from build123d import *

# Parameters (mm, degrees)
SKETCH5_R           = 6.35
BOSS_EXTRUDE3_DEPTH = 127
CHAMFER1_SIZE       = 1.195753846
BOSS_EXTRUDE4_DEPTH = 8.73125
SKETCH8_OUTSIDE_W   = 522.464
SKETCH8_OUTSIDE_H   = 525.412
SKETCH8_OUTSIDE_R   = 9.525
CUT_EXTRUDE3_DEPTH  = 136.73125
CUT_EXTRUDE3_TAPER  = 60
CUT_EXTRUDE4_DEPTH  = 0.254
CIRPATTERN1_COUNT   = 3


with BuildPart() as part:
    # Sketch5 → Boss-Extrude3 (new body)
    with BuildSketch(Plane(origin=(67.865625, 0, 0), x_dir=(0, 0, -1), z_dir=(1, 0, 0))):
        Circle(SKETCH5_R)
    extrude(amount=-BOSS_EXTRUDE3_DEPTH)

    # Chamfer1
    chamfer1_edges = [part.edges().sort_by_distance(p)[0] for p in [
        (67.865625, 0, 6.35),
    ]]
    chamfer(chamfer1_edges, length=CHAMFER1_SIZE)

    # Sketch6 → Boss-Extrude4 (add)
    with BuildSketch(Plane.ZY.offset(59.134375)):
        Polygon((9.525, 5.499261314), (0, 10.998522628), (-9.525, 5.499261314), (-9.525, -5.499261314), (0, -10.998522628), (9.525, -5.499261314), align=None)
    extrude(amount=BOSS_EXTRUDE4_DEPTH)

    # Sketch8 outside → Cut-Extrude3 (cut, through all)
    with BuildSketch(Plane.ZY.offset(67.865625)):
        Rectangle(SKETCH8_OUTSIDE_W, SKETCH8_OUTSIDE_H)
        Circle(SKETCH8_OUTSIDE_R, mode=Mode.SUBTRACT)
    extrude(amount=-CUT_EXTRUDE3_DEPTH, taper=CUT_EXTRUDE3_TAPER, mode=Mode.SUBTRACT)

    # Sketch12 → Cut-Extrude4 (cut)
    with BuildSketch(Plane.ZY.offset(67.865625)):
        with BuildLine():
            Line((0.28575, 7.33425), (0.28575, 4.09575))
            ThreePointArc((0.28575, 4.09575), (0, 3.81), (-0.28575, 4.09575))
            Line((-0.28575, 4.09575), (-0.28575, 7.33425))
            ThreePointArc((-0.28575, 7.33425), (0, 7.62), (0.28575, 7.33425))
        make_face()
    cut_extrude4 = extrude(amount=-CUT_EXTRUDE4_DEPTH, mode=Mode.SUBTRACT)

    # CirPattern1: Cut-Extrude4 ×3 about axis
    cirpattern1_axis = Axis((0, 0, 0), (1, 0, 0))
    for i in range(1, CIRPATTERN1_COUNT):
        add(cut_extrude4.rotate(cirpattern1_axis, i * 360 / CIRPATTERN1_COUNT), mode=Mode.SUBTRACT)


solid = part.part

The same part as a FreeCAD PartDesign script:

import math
import FreeCAD as App
import Part
import Sketcher

V = App.Vector
Q = App.Units.Quantity


def edges_at(feature, points):
    """Names of the edges that pass closest to the given points."""
    edges = feature.Shape.Edges
    near = lambda p: min(range(len(edges)), key=lambda i: edges[i].distToShape(Part.Vertex(*p))[0])
    return sorted({f"Edge{near(p) + 1}" for p in points})


def add_polygon(sketch, points):
    """Adds a closed chain of lines whose ends are joined by coincident constraints."""
    first, n = sketch.GeometryCount, len(points)
    for a, b in zip(points, points[1:] + points[:1]):
        sketch.addGeometry(Part.LineSegment(App.Vector(*a, 0), App.Vector(*b, 0)), False)
    for i in range(n):
        sketch.addConstraint(Sketcher.Constraint("Coincident", first + i, 2, first + (i + 1) % n, 1))

doc = App.newDocument("Part")
body = doc.addObject("PartDesign::Body", "Body")

sketch1 = body.newObject("Sketcher::SketchObject", "Sketch")
sketch1.AttachmentSupport = (doc.getObject("YZ_Plane"), [""])
sketch1.MapMode = "FlatFace"
sketch1.AttachmentOffset = App.Placement(V(0, 0, 2.671875 * 25.4), App.Rotation())
sketch1.addGeometry(Part.Circle(V(0, 0, 0), V(0, 0, 1), 6.35), False)
sketch1.addConstraint([
    Sketcher.Constraint("Coincident", 0, 3, -1, 1),
    Sketcher.Constraint("Diameter", 0, Q("0.5 in")),
])
pad1 = body.newObject("PartDesign::Pad", "Pad")
pad1.Profile = sketch1
pad1.Length = Q("5 in")
pad1.Reversed = True
doc.recompute()

chamfer = body.newObject("PartDesign::Chamfer", "Chamfer")
chamfer.Base = (pad1, edges_at(pad1, [(67.866, 0, 6.35)]))
chamfer.Size = 1.195754

sketch2 = body.newObject("Sketcher::SketchObject", "Sketch001")
sketch2.AttachmentSupport = (doc.getObject("YZ_Plane"), [""])
sketch2.MapMode = "FlatFace"
sketch2.AttachmentOffset = App.Placement(V(0, 0, -2.328125 * 25.4), App.Rotation())
add_polygon(sketch2, [(5.499261, 9.525), (10.998523, 0), (5.499261, -9.525), (-5.499261, -9.525), (-10.998523, 0), (-5.499261, 9.525)])
sketch2.addConstraint([
    Sketcher.Constraint("Horizontal", 2),
    Sketcher.Constraint("Horizontal", 5),
    Sketcher.Constraint("Symmetric", 0, 2, 3, 2, -1, 1),
    Sketcher.Constraint("Symmetric", 1, 2, 4, 2, -1, 1),
    Sketcher.Constraint("PointOnObject", 0, 2, -1),
    Sketcher.Constraint("Parallel", 0, 3),
    Sketcher.Constraint("Vertical", 2, 2, 4, 2),
    Sketcher.Constraint("Angle", 0, Q("-60 deg")),
    Sketcher.Constraint("DistanceY", 2, 2, 4, 2, Q("0.75 in")),
    Sketcher.Constraint("DistanceX", 2, 2, 2, 1, 10.998523),
])
pad2 = body.newObject("PartDesign::Pad", "Pad001")
pad2.Profile = sketch2
pad2.Length = Q("0.34375 in")
pad2.Reversed = True

sketch3 = body.newObject("Sketcher::SketchObject", "Sketch002")
sketch3.AttachmentSupport = (doc.getObject("YZ_Plane"), [""])
sketch3.MapMode = "FlatFace"
sketch3.AttachmentOffset = App.Placement(V(0, 0, -2.671875 * 25.4), App.Rotation())
add_polygon(sketch3, [(262.706, -261.232), (-262.706, -261.232), (-262.706, 261.232), (262.706, 261.232)])
sketch3.addGeometry(Part.Circle(V(0, 0, 0), V(0, 0, 1), 9.525), False)
sketch3.addConstraint([
    Sketcher.Constraint("Horizontal", 0),
    Sketcher.Constraint("Vertical", 1),
    Sketcher.Constraint("Horizontal", 2),
    Sketcher.Constraint("Vertical", 3),
    Sketcher.Constraint("Coincident", 4, 3, -1, 1),
    Sketcher.Constraint("Symmetric", 0, 2, 2, 2, -1, 1),
    Sketcher.Constraint("Diameter", 4, Q("0.75 in")),
    Sketcher.Constraint("DistanceX", 0, 2, 0, 1, 525.412),
    Sketcher.Constraint("DistanceY", 1, 1, 1, 2, 522.464),
])
pocket1 = body.newObject("PartDesign::Pocket", "Pocket")
pocket1.Profile = sketch3
pocket1.Length = 136.73125
pocket1.Reversed = True
pocket1.TaperAngle = 60

sketch4 = body.newObject("Sketcher::SketchObject", "Sketch003")
sketch4.AttachmentSupport = (doc.getObject("YZ_Plane"), [""])
sketch4.MapMode = "FlatFace"
sketch4.AttachmentOffset = App.Placement(V(0, 0, -2.671875 * 25.4), App.Rotation())
sketch4.addGeometry([
    Part.LineSegment(V(4.09575, 0.28575, 0), V(7.33425, 0.28575, 0)),
    Part.ArcOfCircle(Part.Circle(V(7.33425, 0, 0), V(0, 0, 1), 0.28575), math.radians(-90), math.radians(90)),
    Part.LineSegment(V(7.33425, -0.28575, 0), V(4.09575, -0.28575, 0)),
    Part.ArcOfCircle(Part.Circle(V(4.09575, 0, 0), V(0, 0, 1), 0.28575), math.radians(90), math.radians(270)),
], False)
sketch4.addConstraint([
    Sketcher.Constraint("Tangent", 0, 2, 1, 2),
    Sketcher.Constraint("Tangent", 1, 1, 2, 1),
    Sketcher.Constraint("Tangent", 2, 2, 3, 2),
    Sketcher.Constraint("Tangent", 3, 1, 0, 1),
    Sketcher.Constraint("Horizontal", 0),
    Sketcher.Constraint("Horizontal", 2),
    Sketcher.Constraint("PointOnObject", 1, 3, -1),
    Sketcher.Constraint("DistanceX", 0, 1, 0, 2, Q("0.1275 in")),
    Sketcher.Constraint("Radius", 1, 0.28575),
    Sketcher.Constraint("DistanceX", -1, 1, 1, 3, 7.33425),
])
pocket2 = body.newObject("PartDesign::Pocket", "Pocket001")
pocket2.Profile = sketch4
pocket2.Length = Q("0.01 in")
pocket2.Reversed = True
doc.recompute()

polarpattern = body.newObject("PartDesign::PolarPattern", "PolarPattern")
polarpattern.Originals = [pocket2]
polarpattern.Axis = (doc.getObject("X_Axis"), [""])
polarpattern.Angle = 360
polarpattern.Occurrences = 3
body.Tip = polarpattern

doc.recompute()
